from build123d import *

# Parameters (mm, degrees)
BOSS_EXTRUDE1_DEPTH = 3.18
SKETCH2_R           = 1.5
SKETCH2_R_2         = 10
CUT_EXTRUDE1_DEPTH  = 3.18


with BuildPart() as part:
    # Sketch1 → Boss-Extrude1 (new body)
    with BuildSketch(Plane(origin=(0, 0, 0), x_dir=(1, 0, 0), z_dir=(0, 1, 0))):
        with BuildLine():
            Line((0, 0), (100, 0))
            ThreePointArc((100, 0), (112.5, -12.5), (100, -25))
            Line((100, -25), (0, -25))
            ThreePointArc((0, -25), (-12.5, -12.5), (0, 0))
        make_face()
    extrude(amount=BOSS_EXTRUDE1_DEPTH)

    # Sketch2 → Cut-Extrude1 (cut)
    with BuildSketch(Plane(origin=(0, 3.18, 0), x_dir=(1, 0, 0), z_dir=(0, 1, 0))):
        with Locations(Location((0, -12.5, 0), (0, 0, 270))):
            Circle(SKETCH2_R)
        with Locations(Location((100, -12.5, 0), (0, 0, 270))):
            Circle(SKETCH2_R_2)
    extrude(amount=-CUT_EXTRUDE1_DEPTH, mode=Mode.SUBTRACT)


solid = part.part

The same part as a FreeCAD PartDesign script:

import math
import FreeCAD as App
import Part
import Sketcher

V = App.Vector

doc = App.newDocument("Part")
body = doc.addObject("PartDesign::Body", "Body")

# Sketch on XZ plane
sketch1 = body.newObject("Sketcher::SketchObject", "Sketch")
sketch1.AttachmentSupport = (doc.getObject("XZ_Plane"), [""])
sketch1.MapMode = "FlatFace"
sketch1.addGeometry([
    Part.LineSegment(V(100, 0, 0), V(0, 0, 0)),
    Part.ArcOfCircle(Part.Circle(V(0, 12, 0), V(0, 0, 1), 12), math.radians(90), math.radians(270)),
    Part.LineSegment(V(0, 25, 0), V(100, 25, 0)),
    Part.ArcOfCircle(Part.Circle(V(100, 12, 0), V(0, 0, 1), 12), math.radians(-90), math.radians(90)),
], False)
sketch1.addConstraint([
    Sketcher.Constraint("Tangent", 0, 2, 1, 2),
    Sketcher.Constraint("Tangent", 1, 1, 2, 1),
    Sketcher.Constraint("Tangent", 2, 2, 3, 2),
    Sketcher.Constraint("Tangent", 3, 1, 0, 1),
    Sketcher.Constraint("Horizontal", 0),
    Sketcher.Constraint("Horizontal", 2),
    Sketcher.Constraint("Coincident", 0, 2, -1, 1),
    Sketcher.Constraint("Radius", 1, 12.5),
    Sketcher.Constraint("DistanceX", 0, 2, 0, 1, 100.0),
])
pad1 = body.newObject("PartDesign::Pad", "Pad")
pad1.Profile = sketch1
pad1.Length = 3.18
pad1.Reversed = True

# Sketch on XZ plane
sketch2 = body.newObject("Sketcher::SketchObject", "Sketch001")
sketch2.AttachmentSupport = (doc.getObject("XZ_Plane"), [""])
sketch2.MapMode = "FlatFace"
sketch2.AttachmentOffset = App.Placement(V(0, 0, -3.18), App.Rotation())
sketch2.addGeometry([
    Part.Circle(V(0, 12.5, 0), V(0, 0, 1), 1.5),
    Part.Circle(V(100, 12.5, 0), V(0, 0, 1), 10),
], False)
sketch2.addConstraint([
    Sketcher.Constraint("PointOnObject", 0, 3, -2),
    Sketcher.Constraint("Horizontal", 0, 3, 1, 3),
    Sketcher.Constraint("Diameter", 0, 3.0),
    Sketcher.Constraint("Diameter", 1, 20.0),
    Sketcher.Constraint("DistanceX", -1, 1, 1, 3, 100.0),
    Sketcher.Constraint("DistanceY", -1, 1, 0, 3, 12.5),
])
pocket1 = body.newObject("PartDesign::Pocket", "Pocket")
pocket1.Profile = sketch2
pocket1.Length = 3.18
pocket1.Reversed = True

doc.recompute()
